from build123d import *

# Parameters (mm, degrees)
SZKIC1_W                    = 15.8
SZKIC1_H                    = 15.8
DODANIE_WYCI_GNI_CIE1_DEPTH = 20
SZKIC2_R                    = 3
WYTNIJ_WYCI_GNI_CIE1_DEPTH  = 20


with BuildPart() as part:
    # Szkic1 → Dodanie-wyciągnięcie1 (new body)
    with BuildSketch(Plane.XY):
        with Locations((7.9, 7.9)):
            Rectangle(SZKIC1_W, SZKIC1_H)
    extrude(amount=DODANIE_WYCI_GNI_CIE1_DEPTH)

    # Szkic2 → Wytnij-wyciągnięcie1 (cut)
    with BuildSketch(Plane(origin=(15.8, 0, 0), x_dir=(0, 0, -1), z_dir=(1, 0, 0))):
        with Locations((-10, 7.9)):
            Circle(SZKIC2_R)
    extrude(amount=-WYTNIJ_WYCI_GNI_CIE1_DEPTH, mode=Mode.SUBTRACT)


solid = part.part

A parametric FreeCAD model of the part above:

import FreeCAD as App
import Part
import Sketcher
from FreeCAD import Vector
Q = App.Units.Quantity


def add_polygon(sketch, points):
    """Adds a closed chain of lines whose ends are joined by coincident constraints."""
    first, n = sketch.GeometryCount, len(points)
    for a, b in zip(points, points[1:] + points[:1]):
        sketch.addGeometry(Part.LineSegment(App.Vector(*a, 0), App.Vector(*b, 0)), False)
    for i in range(n):
        sketch.addConstraint(Sketcher.Constraint("Coincident", first + i, 2, first + (i + 1) % n, 1))

doc = App.newDocument("Part")
params = doc.addObject("Spreadsheet::Sheet", "Params")
for row, (alias, value) in enumerate([
    ("sketch1_width", "15.8 mm"),
    ("pad1_length", "20 mm"),
    ("sketch2_diameter", "6 mm"),
    ("pocket1_length", "20 mm"),
], start=1):
    params.set(f"A{row}", alias)
    params.set(f"B{row}", "=" + value)
    params.setAlias(f"B{row}", alias)

body = doc.addObject("PartDesign::Body", "Body")

# Sketch on XY plane
sketch1 = body.newObject("Sketcher::SketchObject", "Sketch")
sketch1.AttachmentSupport = (doc.getObject("XY_Plane"), [""])
sketch1.MapMode = "FlatFace"
add_polygon(sketch1, [(0, 16), (0, 0), (16, 0), (16, 16)])  # lines 0-3
sketch1.addConstraint([
    Sketcher.Constraint("Vertical", 0),
    Sketcher.Constraint("Horizontal", 1),
    Sketcher.Constraint("Vertical", 2),
    Sketcher.Constraint("Horizontal", 3),
    Sketcher.Constraint("Coincident", 0, 2, -1, 1),
    Sketcher.Constraint("Equal", 3, 0),
    Sketcher.Constraint("DistanceX", 1, 1, 1, 2, Q("15.8 mm")),
])
sketch1.setExpression("Constraints[10]", "Params.sketch1_width")
pad1 = body.newObject("PartDesign::Pad", "Pad")
pad1.Profile = sketch1
pad1.setExpression("Length", "Params.pad1_length")

# Sketch on YZ plane
sketch2 = body.newObject("Sketcher::SketchObject", "Sketch001")
sketch2.AttachmentSupport = (doc.getObject("YZ_Plane"), [""])
sketch2.MapMode = "FlatFace"
sketch2.AttachmentOffset = App.Placement(Vector(0, 0, 15.8), App.Rotation())
sketch2.addGeometry(Part.Circle(Vector(7.9, 10, 0), Vector(0, 0, 1), 3), False)
sketch2.addConstraint([
    Sketcher.Constraint("Diameter", 0, Q("6 mm")),
    Sketcher.Constraint("DistanceY", -1, 1, 0, 3, Q("10 mm")),
    Sketcher.Constraint("DistanceX", -1, 1, 0, 3, Q("7.9 mm")),
])
sketch2.setExpression("Constraints[0]", "Params.sketch2_diameter")
pocket1 = body.newObject("PartDesign::Pocket", "Pocket")
pocket1.Profile = sketch2
pocket1.setExpression("Length", "Params.pocket1_length")

doc.recompute()
